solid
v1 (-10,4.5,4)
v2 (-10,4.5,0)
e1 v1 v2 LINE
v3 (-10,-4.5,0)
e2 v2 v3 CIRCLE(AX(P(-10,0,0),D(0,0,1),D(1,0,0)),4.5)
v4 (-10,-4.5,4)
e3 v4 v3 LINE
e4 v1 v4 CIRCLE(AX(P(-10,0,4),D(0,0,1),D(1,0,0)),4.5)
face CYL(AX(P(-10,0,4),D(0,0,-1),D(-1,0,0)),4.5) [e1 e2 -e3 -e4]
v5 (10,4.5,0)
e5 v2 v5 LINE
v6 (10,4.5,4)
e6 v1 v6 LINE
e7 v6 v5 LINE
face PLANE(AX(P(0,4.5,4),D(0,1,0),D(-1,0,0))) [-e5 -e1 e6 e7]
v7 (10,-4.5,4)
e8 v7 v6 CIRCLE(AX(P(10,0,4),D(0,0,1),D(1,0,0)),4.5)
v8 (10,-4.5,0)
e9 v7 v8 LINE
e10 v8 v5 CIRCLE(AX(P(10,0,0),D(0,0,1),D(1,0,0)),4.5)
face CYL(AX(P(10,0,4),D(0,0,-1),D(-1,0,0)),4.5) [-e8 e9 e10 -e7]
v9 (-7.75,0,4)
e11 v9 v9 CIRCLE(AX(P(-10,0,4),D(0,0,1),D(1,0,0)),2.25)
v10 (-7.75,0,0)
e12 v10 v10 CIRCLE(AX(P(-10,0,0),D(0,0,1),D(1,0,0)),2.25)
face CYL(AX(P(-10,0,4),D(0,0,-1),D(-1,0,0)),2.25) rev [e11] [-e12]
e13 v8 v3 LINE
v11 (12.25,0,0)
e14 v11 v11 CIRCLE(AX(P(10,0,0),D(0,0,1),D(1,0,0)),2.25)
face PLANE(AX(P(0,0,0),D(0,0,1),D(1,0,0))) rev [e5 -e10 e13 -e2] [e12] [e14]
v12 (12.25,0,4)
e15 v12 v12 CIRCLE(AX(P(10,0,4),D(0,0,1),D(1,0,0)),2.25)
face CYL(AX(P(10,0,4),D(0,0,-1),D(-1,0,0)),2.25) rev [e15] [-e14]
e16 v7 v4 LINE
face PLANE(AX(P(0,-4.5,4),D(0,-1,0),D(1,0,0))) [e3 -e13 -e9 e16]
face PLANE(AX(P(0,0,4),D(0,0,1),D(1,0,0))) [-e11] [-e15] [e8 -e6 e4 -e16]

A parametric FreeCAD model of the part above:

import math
import FreeCAD as App
import Part
import Sketcher

V = App.Vector

doc = App.newDocument("Part")
params = doc.addObject("Spreadsheet::Sheet", "Params")
for row, (alias, value) in enumerate([
    ("sketch1_diameter", "4.5 mm"),
    ("sketch1_radius", "4.5 mm"),
    ("sketch1_width", "20 mm"),
    ("pad1_length", "4 mm"),
], start=1):
    params.set(f"A{row}", alias)
    params.set(f"B{row}", "=" + value)
    params.setAlias(f"B{row}", alias)

body = doc.addObject("PartDesign::Body", "Body")

# Sketch on XY plane
sketch1 = body.newObject("Sketcher::SketchObject", "Sketch")
sketch1.AttachmentSupport = (doc.getObject("XY_Plane"), [""])
sketch1.MapMode = "FlatFace"
sketch1.addGeometry([
    Part.ArcOfCircle(Part.Circle(V(-10, 0, 0), V(0, 0, 1), 4.5), math.radians(90), math.radians(270)),  # 0
    Part.LineSegment(V(-10, -4.5, 0), V(10, -4.5, 0)),  # 1
    Part.ArcOfCircle(Part.Circle(V(10, 0, 0), V(0, 0, 1), 4.5), math.radians(-90), math.radians(90)),  # 2
    Part.LineSegment(V(10, 4.5, 0), V(-10, 4.5, 0)),  # 3
    Part.Circle(V(-10, 0, 0), V(0, 0, 1), 2.25),  # 4
    Part.Circle(V(10, 0, 0), V(0, 0, 1), 2.25),  # 5
], False)
sketch1.addConstraint([
    Sketcher.Constraint("Tangent", 0, 2, 1, 1),
    Sketcher.Constraint("Tangent", 1, 2, 2, 1),
    Sketcher.Constraint("Tangent", 2, 2, 3, 1),
    Sketcher.Constraint("Tangent", 3, 2, 0, 1),
    Sketcher.Constraint("Horizontal", 1),
    Sketcher.Constraint("Horizontal", 3),
    Sketcher.Constraint("Coincident", 4, 3, 0, 3),
    Sketcher.Constraint("Coincident", 5, 3, 2, 3),
    Sketcher.Constraint("Equal", 4, 5),
    Sketcher.Constraint("Symmetric", 0, 3, 2, 3, -1, 1),
    Sketcher.Constraint("Diameter", 4, 4.5),
    Sketcher.Constraint("Radius", 0, 4.5),
    Sketcher.Constraint("DistanceX", 1, 1, 1, 2, 20.0),
])
sketch1.setExpression("Constraints[10]", "Params.sketch1_diameter")
sketch1.setExpression("Constraints[11]", "Params.sketch1_radius")
sketch1.setExpression("Constraints[12]", "Params.sketch1_width")
pad1 = body.newObject("PartDesign::Pad", "Pad")
pad1.Profile = sketch1
pad1.setExpression("Length", "Params.pad1_length")

doc.recompute()
